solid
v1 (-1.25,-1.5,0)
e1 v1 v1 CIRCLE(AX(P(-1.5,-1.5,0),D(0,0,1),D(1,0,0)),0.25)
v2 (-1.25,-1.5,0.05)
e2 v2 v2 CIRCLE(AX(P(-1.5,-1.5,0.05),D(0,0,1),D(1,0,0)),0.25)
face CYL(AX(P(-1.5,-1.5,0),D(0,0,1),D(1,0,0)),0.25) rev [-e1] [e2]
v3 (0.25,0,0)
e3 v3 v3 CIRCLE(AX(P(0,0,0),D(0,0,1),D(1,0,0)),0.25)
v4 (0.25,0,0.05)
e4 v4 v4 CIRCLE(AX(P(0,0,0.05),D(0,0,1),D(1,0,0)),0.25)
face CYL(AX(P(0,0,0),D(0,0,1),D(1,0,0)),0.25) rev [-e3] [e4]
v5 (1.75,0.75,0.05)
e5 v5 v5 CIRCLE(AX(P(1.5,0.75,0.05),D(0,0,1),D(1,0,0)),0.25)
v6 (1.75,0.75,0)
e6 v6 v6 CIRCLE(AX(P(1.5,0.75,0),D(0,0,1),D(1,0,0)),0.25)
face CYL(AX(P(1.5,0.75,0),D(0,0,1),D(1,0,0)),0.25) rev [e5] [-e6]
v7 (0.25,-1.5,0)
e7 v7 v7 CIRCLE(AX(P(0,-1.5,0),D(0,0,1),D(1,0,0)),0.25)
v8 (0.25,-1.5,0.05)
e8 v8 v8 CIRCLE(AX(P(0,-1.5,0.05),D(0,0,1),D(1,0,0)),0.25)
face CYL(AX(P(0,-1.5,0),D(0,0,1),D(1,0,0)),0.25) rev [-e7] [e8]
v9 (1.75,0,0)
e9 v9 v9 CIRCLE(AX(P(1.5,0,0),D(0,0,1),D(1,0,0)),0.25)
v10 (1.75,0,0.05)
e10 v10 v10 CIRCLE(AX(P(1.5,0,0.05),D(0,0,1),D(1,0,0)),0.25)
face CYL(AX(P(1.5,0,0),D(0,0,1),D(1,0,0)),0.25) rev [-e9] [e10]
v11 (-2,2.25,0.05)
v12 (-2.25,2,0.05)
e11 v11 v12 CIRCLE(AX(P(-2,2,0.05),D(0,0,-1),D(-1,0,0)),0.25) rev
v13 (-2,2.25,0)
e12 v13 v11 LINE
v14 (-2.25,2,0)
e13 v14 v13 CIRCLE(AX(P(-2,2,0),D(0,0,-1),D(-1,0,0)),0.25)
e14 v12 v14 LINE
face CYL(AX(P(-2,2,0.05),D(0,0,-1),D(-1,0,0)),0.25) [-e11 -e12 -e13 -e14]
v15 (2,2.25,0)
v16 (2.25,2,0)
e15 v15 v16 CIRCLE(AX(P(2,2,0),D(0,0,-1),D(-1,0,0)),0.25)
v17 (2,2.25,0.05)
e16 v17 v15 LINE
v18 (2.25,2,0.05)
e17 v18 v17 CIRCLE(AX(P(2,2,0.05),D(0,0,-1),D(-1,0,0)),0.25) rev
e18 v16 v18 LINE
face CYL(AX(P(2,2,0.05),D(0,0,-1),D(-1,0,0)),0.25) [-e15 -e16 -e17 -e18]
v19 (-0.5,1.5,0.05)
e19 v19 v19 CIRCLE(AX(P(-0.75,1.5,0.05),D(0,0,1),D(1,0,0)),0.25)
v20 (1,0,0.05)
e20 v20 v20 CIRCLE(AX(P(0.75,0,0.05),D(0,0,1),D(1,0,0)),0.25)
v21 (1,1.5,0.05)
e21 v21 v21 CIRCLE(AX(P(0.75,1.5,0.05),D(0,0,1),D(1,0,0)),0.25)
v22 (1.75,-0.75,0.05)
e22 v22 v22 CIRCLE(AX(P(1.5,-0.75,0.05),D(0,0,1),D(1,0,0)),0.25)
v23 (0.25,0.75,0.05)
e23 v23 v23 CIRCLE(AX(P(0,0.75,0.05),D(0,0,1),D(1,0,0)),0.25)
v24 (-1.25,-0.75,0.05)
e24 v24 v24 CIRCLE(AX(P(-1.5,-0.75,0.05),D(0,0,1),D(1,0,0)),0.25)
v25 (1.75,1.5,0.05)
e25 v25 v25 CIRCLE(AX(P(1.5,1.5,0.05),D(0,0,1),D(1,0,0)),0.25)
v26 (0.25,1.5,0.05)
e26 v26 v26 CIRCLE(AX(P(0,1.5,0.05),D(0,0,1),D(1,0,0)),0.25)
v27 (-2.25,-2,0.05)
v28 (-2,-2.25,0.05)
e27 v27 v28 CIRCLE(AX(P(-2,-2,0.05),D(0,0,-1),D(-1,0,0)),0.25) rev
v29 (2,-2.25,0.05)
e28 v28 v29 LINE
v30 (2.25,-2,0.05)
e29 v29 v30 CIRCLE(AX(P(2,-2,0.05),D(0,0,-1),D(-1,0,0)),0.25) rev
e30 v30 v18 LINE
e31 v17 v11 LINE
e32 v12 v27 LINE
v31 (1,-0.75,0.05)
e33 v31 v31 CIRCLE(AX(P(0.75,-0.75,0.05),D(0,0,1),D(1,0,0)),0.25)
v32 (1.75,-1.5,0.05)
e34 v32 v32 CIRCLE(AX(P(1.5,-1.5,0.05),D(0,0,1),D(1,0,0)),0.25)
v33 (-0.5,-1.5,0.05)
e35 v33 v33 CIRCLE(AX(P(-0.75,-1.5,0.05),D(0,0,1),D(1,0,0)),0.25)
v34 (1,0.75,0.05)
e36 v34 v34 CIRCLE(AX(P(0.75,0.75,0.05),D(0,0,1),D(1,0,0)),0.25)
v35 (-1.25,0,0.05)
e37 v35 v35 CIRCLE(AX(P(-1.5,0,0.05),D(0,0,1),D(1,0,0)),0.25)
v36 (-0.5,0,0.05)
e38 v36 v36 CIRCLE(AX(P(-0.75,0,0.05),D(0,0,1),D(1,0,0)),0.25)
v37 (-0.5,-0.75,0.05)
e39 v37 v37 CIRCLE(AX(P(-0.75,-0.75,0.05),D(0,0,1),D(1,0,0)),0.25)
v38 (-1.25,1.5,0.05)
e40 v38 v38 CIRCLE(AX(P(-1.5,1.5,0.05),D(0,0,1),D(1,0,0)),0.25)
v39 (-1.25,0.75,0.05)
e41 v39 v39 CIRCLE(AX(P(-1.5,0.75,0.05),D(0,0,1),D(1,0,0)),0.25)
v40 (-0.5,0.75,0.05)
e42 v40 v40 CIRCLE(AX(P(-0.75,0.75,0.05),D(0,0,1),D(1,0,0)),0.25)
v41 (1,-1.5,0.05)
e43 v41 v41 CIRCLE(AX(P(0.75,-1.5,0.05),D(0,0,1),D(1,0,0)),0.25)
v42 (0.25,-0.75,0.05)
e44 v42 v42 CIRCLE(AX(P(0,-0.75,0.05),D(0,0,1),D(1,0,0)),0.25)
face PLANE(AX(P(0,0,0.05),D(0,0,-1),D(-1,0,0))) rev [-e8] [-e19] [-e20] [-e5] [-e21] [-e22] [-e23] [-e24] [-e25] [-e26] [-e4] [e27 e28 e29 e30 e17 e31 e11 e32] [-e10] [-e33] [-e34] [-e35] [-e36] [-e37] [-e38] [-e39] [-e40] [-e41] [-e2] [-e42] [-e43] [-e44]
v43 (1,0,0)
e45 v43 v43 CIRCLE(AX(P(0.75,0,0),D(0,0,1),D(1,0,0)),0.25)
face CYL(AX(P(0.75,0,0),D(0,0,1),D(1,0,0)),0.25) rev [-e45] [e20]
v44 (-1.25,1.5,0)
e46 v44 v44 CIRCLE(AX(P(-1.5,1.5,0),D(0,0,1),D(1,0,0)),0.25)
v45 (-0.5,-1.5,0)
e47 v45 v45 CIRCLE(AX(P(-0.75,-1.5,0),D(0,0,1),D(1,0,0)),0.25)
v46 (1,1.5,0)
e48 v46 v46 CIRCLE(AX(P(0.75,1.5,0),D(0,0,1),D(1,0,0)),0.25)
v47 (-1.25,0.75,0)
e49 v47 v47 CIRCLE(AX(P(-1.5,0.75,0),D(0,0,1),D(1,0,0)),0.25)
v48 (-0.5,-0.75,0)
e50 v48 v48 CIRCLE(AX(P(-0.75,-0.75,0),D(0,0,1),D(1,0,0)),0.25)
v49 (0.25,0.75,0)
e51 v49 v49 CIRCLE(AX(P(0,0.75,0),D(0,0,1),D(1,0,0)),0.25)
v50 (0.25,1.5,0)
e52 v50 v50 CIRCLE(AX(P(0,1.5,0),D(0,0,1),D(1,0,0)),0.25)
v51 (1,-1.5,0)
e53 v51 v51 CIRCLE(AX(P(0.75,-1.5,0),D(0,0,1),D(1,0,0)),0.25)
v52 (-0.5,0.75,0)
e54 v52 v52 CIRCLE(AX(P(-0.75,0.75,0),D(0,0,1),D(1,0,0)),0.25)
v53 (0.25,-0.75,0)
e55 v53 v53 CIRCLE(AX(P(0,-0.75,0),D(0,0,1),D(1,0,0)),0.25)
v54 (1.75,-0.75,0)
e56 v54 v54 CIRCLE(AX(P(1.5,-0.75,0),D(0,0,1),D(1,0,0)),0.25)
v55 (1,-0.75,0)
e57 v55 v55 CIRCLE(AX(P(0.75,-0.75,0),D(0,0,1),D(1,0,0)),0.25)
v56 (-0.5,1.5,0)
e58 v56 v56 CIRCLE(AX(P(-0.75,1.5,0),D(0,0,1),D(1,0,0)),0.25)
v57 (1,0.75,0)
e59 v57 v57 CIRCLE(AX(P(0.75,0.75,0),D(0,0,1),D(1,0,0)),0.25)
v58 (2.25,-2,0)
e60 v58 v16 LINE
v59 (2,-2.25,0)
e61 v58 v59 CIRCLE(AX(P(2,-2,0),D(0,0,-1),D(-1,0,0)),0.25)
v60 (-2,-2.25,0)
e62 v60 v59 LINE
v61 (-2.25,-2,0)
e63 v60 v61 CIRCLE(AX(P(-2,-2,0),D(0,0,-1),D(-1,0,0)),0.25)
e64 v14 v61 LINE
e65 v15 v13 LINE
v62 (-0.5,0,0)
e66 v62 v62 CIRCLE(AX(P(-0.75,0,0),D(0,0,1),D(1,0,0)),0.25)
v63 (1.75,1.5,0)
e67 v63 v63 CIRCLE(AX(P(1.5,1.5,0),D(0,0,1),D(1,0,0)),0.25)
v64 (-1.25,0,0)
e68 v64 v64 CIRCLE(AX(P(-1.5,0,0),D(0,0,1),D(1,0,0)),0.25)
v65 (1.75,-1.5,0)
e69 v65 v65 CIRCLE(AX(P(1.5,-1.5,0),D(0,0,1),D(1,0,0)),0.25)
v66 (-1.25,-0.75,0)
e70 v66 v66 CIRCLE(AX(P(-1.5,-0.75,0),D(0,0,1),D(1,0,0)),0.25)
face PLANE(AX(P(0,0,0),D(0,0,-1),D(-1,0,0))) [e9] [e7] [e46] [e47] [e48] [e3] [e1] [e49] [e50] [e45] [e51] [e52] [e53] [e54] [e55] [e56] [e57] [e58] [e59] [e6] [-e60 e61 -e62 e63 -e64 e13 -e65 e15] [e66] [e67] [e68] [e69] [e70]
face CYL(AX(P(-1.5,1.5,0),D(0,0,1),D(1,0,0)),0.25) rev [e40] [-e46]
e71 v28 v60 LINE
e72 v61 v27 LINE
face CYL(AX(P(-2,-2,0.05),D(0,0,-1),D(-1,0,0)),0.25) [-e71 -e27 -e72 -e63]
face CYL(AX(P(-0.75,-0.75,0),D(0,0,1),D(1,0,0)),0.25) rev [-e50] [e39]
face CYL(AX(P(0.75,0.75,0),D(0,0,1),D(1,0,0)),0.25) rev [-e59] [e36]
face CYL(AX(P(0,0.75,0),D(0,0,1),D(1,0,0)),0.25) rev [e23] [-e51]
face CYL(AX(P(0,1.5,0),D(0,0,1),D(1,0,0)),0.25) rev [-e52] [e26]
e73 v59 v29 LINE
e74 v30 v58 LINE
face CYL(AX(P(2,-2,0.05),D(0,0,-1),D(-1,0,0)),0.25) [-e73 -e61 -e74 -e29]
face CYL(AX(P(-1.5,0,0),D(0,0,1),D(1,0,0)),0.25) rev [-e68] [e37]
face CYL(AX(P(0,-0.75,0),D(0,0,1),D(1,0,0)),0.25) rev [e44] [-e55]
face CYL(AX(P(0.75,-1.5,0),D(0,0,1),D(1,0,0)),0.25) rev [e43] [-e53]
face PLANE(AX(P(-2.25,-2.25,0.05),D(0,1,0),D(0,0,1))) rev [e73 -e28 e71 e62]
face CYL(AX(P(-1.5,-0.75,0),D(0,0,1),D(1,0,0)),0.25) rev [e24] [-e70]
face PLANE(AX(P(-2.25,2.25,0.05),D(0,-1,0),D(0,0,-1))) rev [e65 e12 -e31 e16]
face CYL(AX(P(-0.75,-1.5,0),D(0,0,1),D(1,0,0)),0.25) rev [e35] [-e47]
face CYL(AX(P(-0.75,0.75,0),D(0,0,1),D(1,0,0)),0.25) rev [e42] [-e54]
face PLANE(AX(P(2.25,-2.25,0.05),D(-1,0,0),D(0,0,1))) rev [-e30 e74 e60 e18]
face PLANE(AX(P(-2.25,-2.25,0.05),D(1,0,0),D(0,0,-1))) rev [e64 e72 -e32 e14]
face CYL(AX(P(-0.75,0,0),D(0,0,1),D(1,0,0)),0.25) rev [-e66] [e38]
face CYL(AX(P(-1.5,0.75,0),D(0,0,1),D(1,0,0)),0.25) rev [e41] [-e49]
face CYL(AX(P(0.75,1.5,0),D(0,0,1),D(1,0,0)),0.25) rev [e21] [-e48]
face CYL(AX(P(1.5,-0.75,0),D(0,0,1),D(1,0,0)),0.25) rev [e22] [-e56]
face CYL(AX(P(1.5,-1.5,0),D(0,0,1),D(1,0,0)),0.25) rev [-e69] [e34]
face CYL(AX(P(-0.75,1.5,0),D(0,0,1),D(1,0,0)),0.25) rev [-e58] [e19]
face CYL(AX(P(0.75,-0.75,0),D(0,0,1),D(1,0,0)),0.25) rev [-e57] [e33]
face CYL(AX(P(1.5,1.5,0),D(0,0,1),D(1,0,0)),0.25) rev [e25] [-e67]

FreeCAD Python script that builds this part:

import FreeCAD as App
import Part
import Sketcher
from FreeCAD import Vector


def edges_at(feature, points):
    """Names of the edges that pass closest to the given points."""
    edges = feature.Shape.Edges
    near = lambda p: min(range(len(edges)), key=lambda i: edges[i].distToShape(Part.Vertex(*p))[0])
    return sorted({f"Edge{near(p) + 1}" for p in points})

doc = App.newDocument("Part")
body = doc.addObject("PartDesign::Body", "Body")

# Sketch on XY plane
sketch1 = body.newObject("Sketcher::SketchObject", "Sketch")
sketch1.AttachmentSupport = (doc.getObject("XY_Plane"), [""])
sketch1.MapMode = "FlatFace"
sketch1.addGeometry([
    Part.LineSegment(Vector(-2.2, 2.2, 0), Vector(-2.2, -2.2, 0)),
    Part.LineSegment(Vector(-2.2, -2.2, 0), Vector(2.2, -2.2, 0)),
    Part.LineSegment(Vector(2.2, -2.2, 0), Vector(2.2, 2.2, 0)),
    Part.LineSegment(Vector(2.2, 2.2, 0), Vector(-2.2, 2.2, 0)),
], False)
sketch1.addConstraint([
    Sketcher.Constraint("Coincident", 0, 2, 1, 1),
    Sketcher.Constraint("Coincident", 1, 2, 2, 1),
    Sketcher.Constraint("Coincident", 2, 2, 3, 1),
    Sketcher.Constraint("Coincident", 3, 2, 0, 1),
    Sketcher.Constraint("Vertical", 0),
    Sketcher.Constraint("Horizontal", 1),
    Sketcher.Constraint("Vertical", 2),
    Sketcher.Constraint("Horizontal", 3),
    Sketcher.Constraint("Symmetric", 0, 2, 2, 2, -1, 1),
    Sketcher.Constraint("Equal", 3, 0),
    Sketcher.Constraint("DistanceX", 1, 1, 1, 2, 4.5),
])
pad1 = body.newObject("PartDesign::Pad", "Pad")
pad1.Profile = sketch1
pad1.Length = 0.05
doc.recompute()

fillet = body.newObject("PartDesign::Fillet", "Fillet")
fillet.Base = (pad1, edges_at(pad1, [
    (2.25, -2.25, 0.025),
    (-2.25, -2.25, 0.025),
    (-2.25, 2.25, 0.025),
    (2.25, 2.25, 0.025),
]))
fillet.Radius = 0.25

# Sketch on XY plane
sketch2 = body.newObject("Sketcher::SketchObject", "Sketch001")
sketch2.AttachmentSupport = (doc.getObject("XY_Plane"), [""])
sketch2.MapMode = "FlatFace"
sketch2.AttachmentOffset = App.Placement(Vector(0, 0, 0.05), App.Rotation())
sketch2.addGeometry([
    Part.Circle(Vector(-1.5, 0, 0), Vector(0, 0, 1), 0.25),  # 0
    Part.Circle(Vector(-1.5, 0.75, 0), Vector(0, 0, 1), 0.25),  # 1
    Part.Circle(Vector(-1.5, 1.5, 0), Vector(0, 0, 1), 0.25),  # 2
    Part.Circle(Vector(-0.75, 1.5, 0), Vector(0, 0, 1), 0.25),  # 3
    Part.Circle(Vector(0, 1.5, 0), Vector(0, 0, 1), 0.25),  # 4
    Part.Circle(Vector(0.75, 1.5, 0), Vector(0, 0, 1), 0.25),  # 5
    Part.Circle(Vector(1.5, 1.5, 0), Vector(0, 0, 1), 0.25),  # 6
    Part.Circle(Vector(1.5, 0.75, 0), Vector(0, 0, 1), 0.25),  # 7
    Part.Circle(Vector(0.75, 0.75, 0), Vector(0, 0, 1), 0.25),  # 8
    Part.Circle(Vector(0, 0.75, 0), Vector(0, 0, 1), 0.25),  # 9
    Part.Circle(Vector(-0.75, 0.75, 0), Vector(0, 0, 1), 0.25),  # 10
    Part.Circle(Vector(-0.75, 0, 0), Vector(0, 0, 1), 0.25),  # 11
    Part.Circle(Vector(0, 0, 0), Vector(0, 0, 1), 0.25),  # 12
    Part.Circle(Vector(0.75, 0, 0), Vector(0, 0, 1), 0.25),  # 13
    Part.Circle(Vector(1.5, 0, 0), Vector(0, 0, 1), 0.25),  # 14
    Part.Circle(Vector(1.5, -0.75, 0), Vector(0, 0, 1), 0.25),  # 15
    Part.Circle(Vector(1.5, -1.5, 0), Vector(0, 0, 1), 0.25),  # 16
    Part.Circle(Vector(0.75, -1.5, 0), Vector(0, 0, 1), 0.25),  # 17
    Part.Circle(Vector(0.75, -0.75, 0), Vector(0, 0, 1), 0.25),  # 18
    Part.Circle(Vector(0, -1.5, 0), Vector(0, 0, 1), 0.25),  # 19
    Part.Circle(Vector(0, -0.75, 0), Vector(0, 0, 1), 0.25),  # 20
    Part.Circle(Vector(-0.75, -0.75, 0), Vector(0, 0, 1), 0.25),  # 21
    Part.Circle(Vector(-0.75, -1.5, 0), Vector(0, 0, 1), 0.25),  # 22
    Part.Circle(Vector(-1.5, -1.5, 0), Vector(0, 0, 1), 0.25),  # 23
    Part.Circle(Vector(-1.5, -0.75, 0), Vector(0, 0, 1), 0.25),  # 24
], False)
sketch2.addConstraint([
    Sketcher.Constraint("Coincident", 12, 3, -1, 1),
    Sketcher.Constraint("Equal", 0, 1),
    Sketcher.Constraint("Equal", 1, 2),
    Sketcher.Constraint("Equal", 2, 3),
    Sketcher.Constraint("Equal", 3, 4),
    Sketcher.Constraint("Equal", 4, 5),
    Sketcher.Constraint("Equal", 5, 6),
    Sketcher.Constraint("Equal", 6, 7),
    Sketcher.Constraint("Equal", 7, 8),
    Sketcher.Constraint("Equal", 8, 9),
    Sketcher.Constraint("Equal", 9, 10),
    Sketcher.Constraint("Equal", 10, 11),
    Sketcher.Constraint("Equal", 11, 12),
    Sketcher.Constraint("Equal", 12, 13),
    Sketcher.Constraint("Equal", 13, 14),
    Sketcher.Constraint("Equal", 14, 15),
    Sketcher.Constraint("Equal", 15, 16),
    Sketcher.Constraint("Equal", 16, 17),
    Sketcher.Constraint("Equal", 17, 18),
    Sketcher.Constraint("Equal", 18, 19),
    Sketcher.Constraint("Equal", 19, 20),
    Sketcher.Constraint("Equal", 20, 21),
    Sketcher.Constraint("Equal", 21, 22),
    Sketcher.Constraint("Equal", 22, 23),
    Sketcher.Constraint("Equal", 23, 24),
    Sketcher.Constraint("Symmetric", 11, 3, 13, 3, -1, 1),
    Sketcher.Constraint("Symmetric", 0, 3, 14, 3, -1, 1),
    Sketcher.Constraint("Symmetric", 1, 3, 15, 3, -1, 1),
    Sketcher.Constraint("Symmetric", 2, 3, 16, 3, -1, 1),
    Sketcher.Constraint("Symmetric", 3, 3, 17, 3, -1, 1),
    Sketcher.Constraint("Symmetric", 10, 3, 18, 3, -1, 1),
    Sketcher.Constraint("Symmetric", 4, 3, 19, 3, -1, 1),
    Sketcher.Constraint("Symmetric", 9, 3, 20, 3, -1, 1),
    Sketcher.Constraint("Symmetric", 8, 3, 21, 3, -1, 1),
    Sketcher.Constraint("Symmetric", 5, 3, 22, 3, -1, 1),
    Sketcher.Constraint("Symmetric", 6, 3, 23, 3, -1, 1),
    Sketcher.Constraint("Symmetric", 7, 3, 24, 3, -1, 1),
    Sketcher.Constraint("Symmetric", 3, 3, 5, 3, -2),
    Sketcher.Constraint("Symmetric", 2, 3, 6, 3, -2),
    Sketcher.Constraint("Symmetric", 1, 3, 7, 3, -2),
    Sketcher.Constraint("Symmetric", 8, 3, 10, 3, -2),
    Sketcher.Constraint("PointOnObject", 0, 3, -1),
    Sketcher.Constraint("PointOnObject", 4, 3, -2),
    Sketcher.Constraint("PointOnObject", 9, 3, -2),
    Sketcher.Constraint("PointOnObject", 11, 3, -1),
    Sketcher.Constraint("Horizontal", 2, 3, 3, 3),
    Sketcher.Constraint("Horizontal", 3, 3, 4, 3),
    Sketcher.Constraint("Horizontal", 7, 3, 8, 3),
    Sketcher.Constraint("Horizontal", 8, 3, 9, 3),
    Sketcher.Constraint("Vertical", 0, 3, 1, 3),
    Sketcher.Constraint("Vertical", 1, 3, 2, 3),
    Sketcher.Constraint("Vertical", 5, 3, 8, 3),
    Sketcher.Constraint("Vertical", 10, 3, 11, 3),
    Sketcher.Constraint("Diameter", 0, 0.5),
    Sketcher.Constraint("DistanceX", 2, 3, 6, 3, 3.0),
    Sketcher.Constraint("DistanceY", -1, 1, 2, 3, 1.5),
    Sketcher.Constraint("DistanceX", 3, 3, 5, 3, 1.5),
    Sketcher.Constraint("DistanceY", 15, 3, 7, 3, 1.5),
])
pocket1 = body.newObject("PartDesign::Pocket", "Pocket")
pocket1.Profile = sketch2
pocket1.Length = 0.05

doc.recompute()
